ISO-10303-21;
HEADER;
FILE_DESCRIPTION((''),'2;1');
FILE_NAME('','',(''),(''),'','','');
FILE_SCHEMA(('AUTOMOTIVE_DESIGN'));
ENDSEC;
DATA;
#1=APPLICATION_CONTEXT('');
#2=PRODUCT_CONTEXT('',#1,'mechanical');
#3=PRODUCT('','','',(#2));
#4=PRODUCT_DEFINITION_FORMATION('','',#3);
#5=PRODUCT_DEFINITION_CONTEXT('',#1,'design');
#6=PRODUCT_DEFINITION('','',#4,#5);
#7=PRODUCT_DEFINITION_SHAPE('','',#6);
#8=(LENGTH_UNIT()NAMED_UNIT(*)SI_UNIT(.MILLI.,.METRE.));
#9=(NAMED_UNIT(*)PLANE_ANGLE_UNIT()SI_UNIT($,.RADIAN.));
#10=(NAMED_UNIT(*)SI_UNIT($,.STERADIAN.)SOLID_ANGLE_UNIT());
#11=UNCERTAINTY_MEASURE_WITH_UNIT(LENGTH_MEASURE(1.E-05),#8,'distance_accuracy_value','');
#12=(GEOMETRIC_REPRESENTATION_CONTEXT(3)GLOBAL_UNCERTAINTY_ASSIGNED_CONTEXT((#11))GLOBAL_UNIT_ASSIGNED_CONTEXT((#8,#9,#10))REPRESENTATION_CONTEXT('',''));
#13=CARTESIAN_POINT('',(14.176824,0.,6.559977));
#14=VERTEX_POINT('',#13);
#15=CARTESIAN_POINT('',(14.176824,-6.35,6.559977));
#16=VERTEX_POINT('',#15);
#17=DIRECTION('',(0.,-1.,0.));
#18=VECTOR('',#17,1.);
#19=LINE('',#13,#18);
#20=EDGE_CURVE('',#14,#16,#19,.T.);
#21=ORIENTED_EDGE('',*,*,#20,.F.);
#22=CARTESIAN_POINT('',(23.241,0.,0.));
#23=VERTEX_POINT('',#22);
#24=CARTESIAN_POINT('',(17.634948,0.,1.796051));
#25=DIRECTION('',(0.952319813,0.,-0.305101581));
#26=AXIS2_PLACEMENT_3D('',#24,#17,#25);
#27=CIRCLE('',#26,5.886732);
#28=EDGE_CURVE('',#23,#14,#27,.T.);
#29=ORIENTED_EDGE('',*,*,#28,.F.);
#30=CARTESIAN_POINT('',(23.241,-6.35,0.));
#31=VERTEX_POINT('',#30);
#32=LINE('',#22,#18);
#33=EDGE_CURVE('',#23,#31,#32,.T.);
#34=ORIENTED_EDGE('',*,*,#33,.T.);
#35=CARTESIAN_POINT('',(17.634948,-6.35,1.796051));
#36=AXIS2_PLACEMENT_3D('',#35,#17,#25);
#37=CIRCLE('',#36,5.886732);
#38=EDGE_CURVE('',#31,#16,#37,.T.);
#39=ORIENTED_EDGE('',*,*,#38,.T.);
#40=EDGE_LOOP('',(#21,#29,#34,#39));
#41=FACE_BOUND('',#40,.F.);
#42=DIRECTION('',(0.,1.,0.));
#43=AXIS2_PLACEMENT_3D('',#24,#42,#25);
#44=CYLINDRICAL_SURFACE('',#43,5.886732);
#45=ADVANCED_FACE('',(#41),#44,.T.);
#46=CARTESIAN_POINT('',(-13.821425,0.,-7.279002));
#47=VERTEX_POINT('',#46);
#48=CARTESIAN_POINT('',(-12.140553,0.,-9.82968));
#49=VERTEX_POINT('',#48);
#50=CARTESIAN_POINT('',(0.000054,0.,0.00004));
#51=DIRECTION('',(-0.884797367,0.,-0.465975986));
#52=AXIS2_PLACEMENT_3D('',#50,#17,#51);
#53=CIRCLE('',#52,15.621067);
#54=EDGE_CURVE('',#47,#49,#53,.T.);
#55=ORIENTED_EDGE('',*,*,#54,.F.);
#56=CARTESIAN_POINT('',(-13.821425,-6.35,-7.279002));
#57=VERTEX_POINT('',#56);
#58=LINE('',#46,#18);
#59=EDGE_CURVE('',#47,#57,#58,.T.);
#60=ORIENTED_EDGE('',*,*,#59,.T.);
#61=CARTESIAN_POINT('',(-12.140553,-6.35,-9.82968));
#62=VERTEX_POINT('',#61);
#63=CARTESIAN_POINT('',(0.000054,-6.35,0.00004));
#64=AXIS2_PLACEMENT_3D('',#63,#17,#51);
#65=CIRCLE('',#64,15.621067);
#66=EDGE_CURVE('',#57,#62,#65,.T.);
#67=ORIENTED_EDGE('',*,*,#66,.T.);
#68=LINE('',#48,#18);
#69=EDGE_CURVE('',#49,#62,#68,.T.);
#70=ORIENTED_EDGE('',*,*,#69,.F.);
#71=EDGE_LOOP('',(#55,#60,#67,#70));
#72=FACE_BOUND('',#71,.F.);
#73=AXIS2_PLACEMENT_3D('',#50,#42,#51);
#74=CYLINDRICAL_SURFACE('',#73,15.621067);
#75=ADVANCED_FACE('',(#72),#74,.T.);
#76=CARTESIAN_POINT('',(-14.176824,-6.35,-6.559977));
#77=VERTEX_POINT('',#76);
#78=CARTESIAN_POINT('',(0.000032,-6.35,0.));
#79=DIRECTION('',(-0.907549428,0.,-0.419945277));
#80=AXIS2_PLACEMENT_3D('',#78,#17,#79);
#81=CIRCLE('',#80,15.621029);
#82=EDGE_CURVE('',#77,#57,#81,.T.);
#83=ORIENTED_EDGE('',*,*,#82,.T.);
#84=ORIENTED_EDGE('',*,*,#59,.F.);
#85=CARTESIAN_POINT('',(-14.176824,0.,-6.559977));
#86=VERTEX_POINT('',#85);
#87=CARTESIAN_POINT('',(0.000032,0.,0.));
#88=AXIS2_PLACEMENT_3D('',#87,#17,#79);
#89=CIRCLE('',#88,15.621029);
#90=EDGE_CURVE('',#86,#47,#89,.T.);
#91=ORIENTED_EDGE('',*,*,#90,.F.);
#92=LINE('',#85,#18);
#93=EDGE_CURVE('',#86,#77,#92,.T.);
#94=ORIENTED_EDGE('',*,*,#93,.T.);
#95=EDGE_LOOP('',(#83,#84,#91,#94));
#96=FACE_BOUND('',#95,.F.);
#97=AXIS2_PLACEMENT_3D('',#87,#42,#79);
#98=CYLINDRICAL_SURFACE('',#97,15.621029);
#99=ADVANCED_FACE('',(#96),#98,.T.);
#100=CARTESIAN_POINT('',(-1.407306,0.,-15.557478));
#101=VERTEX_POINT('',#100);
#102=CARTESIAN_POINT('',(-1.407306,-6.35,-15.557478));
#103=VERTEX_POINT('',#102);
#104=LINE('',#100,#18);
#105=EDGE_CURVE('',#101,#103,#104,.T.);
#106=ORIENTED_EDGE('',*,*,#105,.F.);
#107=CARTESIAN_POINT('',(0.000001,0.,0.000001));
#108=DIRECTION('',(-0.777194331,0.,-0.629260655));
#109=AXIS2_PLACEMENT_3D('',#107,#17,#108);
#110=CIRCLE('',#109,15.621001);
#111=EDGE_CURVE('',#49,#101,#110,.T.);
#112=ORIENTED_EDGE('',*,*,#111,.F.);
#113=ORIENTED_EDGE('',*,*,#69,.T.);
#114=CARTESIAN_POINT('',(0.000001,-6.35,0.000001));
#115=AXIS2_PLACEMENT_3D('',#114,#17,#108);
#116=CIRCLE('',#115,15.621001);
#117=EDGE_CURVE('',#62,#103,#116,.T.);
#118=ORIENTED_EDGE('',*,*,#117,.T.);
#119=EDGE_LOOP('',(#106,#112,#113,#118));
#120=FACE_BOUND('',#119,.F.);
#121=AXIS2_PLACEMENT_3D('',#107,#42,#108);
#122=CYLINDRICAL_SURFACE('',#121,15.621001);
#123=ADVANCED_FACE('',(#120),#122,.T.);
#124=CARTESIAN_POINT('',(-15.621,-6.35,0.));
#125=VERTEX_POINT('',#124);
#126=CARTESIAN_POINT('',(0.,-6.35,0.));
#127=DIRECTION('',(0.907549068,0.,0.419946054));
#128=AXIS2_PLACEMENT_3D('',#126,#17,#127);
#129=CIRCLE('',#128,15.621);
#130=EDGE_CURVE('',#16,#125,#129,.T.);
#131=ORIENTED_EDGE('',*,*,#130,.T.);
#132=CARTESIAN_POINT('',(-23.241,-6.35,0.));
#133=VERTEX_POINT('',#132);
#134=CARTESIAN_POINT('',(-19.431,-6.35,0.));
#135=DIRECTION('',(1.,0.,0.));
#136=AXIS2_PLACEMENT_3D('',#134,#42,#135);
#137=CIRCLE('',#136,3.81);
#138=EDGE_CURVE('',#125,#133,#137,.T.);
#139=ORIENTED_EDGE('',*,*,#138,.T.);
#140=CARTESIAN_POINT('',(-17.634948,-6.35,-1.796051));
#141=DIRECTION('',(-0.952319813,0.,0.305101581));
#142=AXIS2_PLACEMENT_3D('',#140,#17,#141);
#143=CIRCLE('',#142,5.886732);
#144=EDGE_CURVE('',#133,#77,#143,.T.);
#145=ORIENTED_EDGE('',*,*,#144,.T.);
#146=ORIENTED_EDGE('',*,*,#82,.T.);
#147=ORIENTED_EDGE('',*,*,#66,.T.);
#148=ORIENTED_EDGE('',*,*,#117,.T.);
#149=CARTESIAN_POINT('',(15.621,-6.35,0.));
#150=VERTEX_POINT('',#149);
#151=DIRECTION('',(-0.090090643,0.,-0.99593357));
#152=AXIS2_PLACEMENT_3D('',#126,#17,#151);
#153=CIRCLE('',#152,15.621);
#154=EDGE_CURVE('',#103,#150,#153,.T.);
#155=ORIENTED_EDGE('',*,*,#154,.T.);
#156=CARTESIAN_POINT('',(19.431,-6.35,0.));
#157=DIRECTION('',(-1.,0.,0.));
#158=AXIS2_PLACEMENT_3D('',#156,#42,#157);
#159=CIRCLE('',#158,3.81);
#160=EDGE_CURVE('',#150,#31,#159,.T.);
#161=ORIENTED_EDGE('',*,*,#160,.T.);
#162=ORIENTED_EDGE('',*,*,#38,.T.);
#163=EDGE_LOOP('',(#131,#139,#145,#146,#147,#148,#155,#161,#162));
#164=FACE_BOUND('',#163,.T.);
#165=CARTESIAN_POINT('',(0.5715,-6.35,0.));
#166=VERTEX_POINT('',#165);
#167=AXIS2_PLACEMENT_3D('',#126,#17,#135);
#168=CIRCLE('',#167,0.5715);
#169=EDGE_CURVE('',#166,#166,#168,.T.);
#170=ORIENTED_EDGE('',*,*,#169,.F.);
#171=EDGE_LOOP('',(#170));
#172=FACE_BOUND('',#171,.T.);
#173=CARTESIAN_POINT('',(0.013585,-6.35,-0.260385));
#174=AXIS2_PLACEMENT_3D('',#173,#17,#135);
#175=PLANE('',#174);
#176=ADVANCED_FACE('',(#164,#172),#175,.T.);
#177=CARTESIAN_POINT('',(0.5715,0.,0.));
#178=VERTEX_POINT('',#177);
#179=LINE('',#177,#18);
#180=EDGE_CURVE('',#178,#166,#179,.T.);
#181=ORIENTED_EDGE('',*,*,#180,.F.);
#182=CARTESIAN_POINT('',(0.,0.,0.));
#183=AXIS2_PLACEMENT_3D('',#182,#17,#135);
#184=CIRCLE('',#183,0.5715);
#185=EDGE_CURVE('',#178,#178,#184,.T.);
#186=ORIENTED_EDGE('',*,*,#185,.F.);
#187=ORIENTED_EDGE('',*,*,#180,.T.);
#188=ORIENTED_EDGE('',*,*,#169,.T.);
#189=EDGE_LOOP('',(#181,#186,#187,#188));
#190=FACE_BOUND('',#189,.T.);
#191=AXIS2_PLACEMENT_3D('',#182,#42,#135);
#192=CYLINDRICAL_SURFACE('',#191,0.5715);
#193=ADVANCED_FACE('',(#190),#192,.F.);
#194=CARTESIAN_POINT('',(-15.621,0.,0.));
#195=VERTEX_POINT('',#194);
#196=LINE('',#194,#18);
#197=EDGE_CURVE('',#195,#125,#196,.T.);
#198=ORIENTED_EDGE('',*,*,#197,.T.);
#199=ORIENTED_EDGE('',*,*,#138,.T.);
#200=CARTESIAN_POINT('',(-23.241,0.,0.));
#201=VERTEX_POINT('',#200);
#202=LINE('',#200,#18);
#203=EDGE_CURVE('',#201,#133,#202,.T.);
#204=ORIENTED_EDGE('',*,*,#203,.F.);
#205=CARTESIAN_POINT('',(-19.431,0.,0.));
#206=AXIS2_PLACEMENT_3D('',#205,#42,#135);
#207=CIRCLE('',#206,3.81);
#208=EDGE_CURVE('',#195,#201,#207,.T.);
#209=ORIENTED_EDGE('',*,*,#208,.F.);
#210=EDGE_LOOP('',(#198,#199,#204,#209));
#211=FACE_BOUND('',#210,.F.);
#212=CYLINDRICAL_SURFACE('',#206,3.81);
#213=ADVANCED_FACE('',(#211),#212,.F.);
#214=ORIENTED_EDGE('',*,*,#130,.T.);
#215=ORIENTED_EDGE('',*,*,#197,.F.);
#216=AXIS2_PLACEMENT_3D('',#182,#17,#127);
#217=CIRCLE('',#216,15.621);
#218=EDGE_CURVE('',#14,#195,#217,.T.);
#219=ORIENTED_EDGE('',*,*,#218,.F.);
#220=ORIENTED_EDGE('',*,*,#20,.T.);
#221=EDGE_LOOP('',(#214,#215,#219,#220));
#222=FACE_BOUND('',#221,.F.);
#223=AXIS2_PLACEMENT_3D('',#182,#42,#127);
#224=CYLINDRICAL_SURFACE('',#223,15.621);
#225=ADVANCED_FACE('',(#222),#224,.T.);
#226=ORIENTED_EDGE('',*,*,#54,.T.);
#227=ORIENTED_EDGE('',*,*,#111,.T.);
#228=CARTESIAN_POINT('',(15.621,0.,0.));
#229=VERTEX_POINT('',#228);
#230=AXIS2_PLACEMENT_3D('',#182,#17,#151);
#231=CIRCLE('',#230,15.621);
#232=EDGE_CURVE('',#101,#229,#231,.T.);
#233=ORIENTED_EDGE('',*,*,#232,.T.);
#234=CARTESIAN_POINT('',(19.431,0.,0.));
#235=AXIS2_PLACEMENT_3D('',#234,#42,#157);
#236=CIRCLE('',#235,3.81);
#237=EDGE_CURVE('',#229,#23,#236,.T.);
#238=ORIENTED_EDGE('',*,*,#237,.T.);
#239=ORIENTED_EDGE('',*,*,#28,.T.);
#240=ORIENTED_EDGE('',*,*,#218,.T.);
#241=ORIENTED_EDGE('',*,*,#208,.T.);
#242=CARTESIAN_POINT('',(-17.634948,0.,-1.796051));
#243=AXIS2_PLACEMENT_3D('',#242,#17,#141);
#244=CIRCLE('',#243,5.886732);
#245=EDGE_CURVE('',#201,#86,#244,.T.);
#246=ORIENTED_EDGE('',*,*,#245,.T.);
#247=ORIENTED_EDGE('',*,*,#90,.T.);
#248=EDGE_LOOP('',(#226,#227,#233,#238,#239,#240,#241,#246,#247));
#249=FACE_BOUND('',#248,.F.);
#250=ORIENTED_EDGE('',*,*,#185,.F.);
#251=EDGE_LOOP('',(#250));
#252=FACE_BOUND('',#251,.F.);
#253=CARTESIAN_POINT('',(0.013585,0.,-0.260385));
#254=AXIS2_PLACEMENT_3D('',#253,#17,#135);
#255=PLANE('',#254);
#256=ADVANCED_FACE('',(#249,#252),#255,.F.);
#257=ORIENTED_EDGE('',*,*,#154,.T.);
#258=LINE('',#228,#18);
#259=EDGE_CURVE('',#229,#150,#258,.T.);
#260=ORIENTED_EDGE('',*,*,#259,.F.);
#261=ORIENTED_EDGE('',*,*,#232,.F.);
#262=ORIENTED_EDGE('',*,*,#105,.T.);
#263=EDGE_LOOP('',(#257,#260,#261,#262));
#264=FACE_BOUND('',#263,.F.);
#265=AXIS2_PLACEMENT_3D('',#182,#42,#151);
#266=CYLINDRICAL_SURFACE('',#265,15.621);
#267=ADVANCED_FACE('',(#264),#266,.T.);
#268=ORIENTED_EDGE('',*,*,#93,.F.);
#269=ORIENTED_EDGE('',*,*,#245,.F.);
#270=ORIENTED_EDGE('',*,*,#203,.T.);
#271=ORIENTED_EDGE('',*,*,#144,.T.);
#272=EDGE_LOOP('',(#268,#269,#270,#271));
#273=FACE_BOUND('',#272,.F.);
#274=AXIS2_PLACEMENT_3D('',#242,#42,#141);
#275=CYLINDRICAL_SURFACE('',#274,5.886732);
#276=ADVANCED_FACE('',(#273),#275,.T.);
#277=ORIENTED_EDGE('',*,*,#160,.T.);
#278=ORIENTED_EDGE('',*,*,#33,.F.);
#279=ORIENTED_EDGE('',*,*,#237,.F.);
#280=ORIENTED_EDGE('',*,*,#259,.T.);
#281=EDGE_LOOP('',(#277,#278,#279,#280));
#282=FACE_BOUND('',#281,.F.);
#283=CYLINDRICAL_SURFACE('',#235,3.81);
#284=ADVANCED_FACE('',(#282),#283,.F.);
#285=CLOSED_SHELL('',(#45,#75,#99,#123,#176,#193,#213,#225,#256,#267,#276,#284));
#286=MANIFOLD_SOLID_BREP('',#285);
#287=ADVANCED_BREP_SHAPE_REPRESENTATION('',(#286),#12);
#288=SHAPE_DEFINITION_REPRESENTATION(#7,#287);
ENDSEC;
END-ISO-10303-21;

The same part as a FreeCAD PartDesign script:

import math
import FreeCAD as App
import Part
import Sketcher
from FreeCAD import Vector
Q = App.Units.Quantity

doc = App.newDocument("Part")
body = doc.addObject("PartDesign::Body", "Body")

sketch1 = doc.addObject("Sketcher::SketchObject", "Sketch")
body.addObject(sketch1)
sketch1.AttachmentSupport = (doc.XZ_Plane, [""])
sketch1.MapMode = "FlatFace"
sketch1.addGeometry([
    Part.ArcOfCircle(Part.Circle(Vector(17.634948, 1.796051, 0), Vector(0, 0, 1), 5.886732), math.radians(-17.764275), math.radians(125.975825)),
    Part.ArcOfCircle(Part.Circle(Vector(0, 0, 0), Vector(0, 0, 1), 15.621), math.radians(24.831182), math.radians(179.999999)),
    Part.ArcOfCircle(Part.Circle(Vector(-19.431, 0, 0), Vector(0, 0, 1), 3.81), math.radians(180), math.radians(360)),
    Part.ArcOfCircle(Part.Circle(Vector(-17.634948, -1.796051, 0), Vector(0, 0, 1), 5.886732), math.radians(162.235725), math.radians(305.975825)),
    Part.ArcOfCircle(Part.Circle(Vector(0.000032, 0, 0), Vector(0, 0, 1), 15.621029), math.radians(-155.168867), math.radians(-152.226687)),
    Part.ArcOfCircle(Part.Circle(Vector(0.000054, 0.00004, 0), Vector(0, 0, 1), 15.621067), math.radians(-152.226596), math.radians(-141.004417)),
    Part.ArcOfCircle(Part.Circle(Vector(0.000001, 0.000001, 0), Vector(0, 0, 1), 15.621001), math.radians(-141.004404), math.radians(-95.168824)),
    Part.ArcOfCircle(Part.Circle(Vector(0, 0, 0), Vector(0, 0, 1), 15.621), math.radians(-95.168822), math.radians(-0.000001)),
    Part.ArcOfCircle(Part.Circle(Vector(19.431, 0, 0), Vector(0, 0, 1), 3.81), math.radians(0), math.radians(180)),
    Part.Circle(Vector(0, 0, 0), Vector(0, 0, 1), 0.5715),
], False)
sketch1.addConstraint([
    Sketcher.Constraint("Coincident", 0, 2, 1, 1),
    Sketcher.Constraint("Coincident", 1, 2, 2, 2),
    Sketcher.Constraint("Coincident", 2, 1, 3, 1),
    Sketcher.Constraint("Coincident", 3, 2, 4, 1),
    Sketcher.Constraint("Coincident", 4, 2, 5, 1),
    Sketcher.Constraint("Coincident", 5, 2, 6, 1),
    Sketcher.Constraint("Coincident", 6, 2, 7, 1),
    Sketcher.Constraint("Coincident", 7, 2, 8, 2),
    Sketcher.Constraint("Coincident", 8, 1, 0, 1),
    Sketcher.Constraint("Coincident", 1, 3, -1, 1),
    Sketcher.Constraint("Coincident", 6, 3, -1, 1),
    Sketcher.Constraint("Coincident", 7, 3, -1, 1),
    Sketcher.Constraint("Coincident", 9, 3, -1, 1),
    Sketcher.Constraint("PointOnObject", 2, 3, -1),
    Sketcher.Constraint("PointOnObject", 4, 3, -1),
    Sketcher.Constraint("PointOnObject", 8, 3, -1),
    Sketcher.Constraint("PointOnObject", 1, 2, -1),
    Sketcher.Constraint("PointOnObject", 2, 1, -1),
    Sketcher.Constraint("PointOnObject", 7, 2, -1),
    Sketcher.Constraint("PointOnObject", 8, 1, -1),
    Sketcher.Constraint("Radius", 2, Q("0.15 in")),
    Sketcher.Constraint("Radius", 8, Q("0.15 in")),
    Sketcher.Constraint("Diameter", 9, Q("0.045 in")),
    Sketcher.Constraint("Radius", 1, Q("0.615 in")),
    Sketcher.Constraint("Radius", 6, Q("0.615 in")),
    Sketcher.Constraint("Radius", 0, Q("5.886732 mm")),
    Sketcher.Constraint("Radius", 3, Q("5.886732 mm")),
    Sketcher.Constraint("Radius", 4, Q("15.621029 mm")),
    Sketcher.Constraint("Radius", 5, Q("15.621067 mm")),
    Sketcher.Constraint("DistanceY", 4, 2, -1, 1, Q("7.279002 mm")),
    Sketcher.Constraint("DistanceX", 3, 2, 4, 2, Q("0.355399 mm")),
    Sketcher.Constraint("DistanceY", 6, 2, 3, 2, Q("8.997501 mm")),
    Sketcher.Constraint("DistanceX", -1, 1, 0, 3, Q("17.634948 mm")),
    Sketcher.Constraint("DistanceX", 3, 3, -1, 1, Q("17.634948 mm")),
    Sketcher.Constraint("DistanceY", 5, 2, -1, 1, Q("9.82968 mm")),
])
pad1 = doc.addObject("PartDesign::Pad", "Pad")
body.addObject(pad1)
pad1.Profile = sketch1
pad1.Length = Q("0.25 in")

doc.recompute()
